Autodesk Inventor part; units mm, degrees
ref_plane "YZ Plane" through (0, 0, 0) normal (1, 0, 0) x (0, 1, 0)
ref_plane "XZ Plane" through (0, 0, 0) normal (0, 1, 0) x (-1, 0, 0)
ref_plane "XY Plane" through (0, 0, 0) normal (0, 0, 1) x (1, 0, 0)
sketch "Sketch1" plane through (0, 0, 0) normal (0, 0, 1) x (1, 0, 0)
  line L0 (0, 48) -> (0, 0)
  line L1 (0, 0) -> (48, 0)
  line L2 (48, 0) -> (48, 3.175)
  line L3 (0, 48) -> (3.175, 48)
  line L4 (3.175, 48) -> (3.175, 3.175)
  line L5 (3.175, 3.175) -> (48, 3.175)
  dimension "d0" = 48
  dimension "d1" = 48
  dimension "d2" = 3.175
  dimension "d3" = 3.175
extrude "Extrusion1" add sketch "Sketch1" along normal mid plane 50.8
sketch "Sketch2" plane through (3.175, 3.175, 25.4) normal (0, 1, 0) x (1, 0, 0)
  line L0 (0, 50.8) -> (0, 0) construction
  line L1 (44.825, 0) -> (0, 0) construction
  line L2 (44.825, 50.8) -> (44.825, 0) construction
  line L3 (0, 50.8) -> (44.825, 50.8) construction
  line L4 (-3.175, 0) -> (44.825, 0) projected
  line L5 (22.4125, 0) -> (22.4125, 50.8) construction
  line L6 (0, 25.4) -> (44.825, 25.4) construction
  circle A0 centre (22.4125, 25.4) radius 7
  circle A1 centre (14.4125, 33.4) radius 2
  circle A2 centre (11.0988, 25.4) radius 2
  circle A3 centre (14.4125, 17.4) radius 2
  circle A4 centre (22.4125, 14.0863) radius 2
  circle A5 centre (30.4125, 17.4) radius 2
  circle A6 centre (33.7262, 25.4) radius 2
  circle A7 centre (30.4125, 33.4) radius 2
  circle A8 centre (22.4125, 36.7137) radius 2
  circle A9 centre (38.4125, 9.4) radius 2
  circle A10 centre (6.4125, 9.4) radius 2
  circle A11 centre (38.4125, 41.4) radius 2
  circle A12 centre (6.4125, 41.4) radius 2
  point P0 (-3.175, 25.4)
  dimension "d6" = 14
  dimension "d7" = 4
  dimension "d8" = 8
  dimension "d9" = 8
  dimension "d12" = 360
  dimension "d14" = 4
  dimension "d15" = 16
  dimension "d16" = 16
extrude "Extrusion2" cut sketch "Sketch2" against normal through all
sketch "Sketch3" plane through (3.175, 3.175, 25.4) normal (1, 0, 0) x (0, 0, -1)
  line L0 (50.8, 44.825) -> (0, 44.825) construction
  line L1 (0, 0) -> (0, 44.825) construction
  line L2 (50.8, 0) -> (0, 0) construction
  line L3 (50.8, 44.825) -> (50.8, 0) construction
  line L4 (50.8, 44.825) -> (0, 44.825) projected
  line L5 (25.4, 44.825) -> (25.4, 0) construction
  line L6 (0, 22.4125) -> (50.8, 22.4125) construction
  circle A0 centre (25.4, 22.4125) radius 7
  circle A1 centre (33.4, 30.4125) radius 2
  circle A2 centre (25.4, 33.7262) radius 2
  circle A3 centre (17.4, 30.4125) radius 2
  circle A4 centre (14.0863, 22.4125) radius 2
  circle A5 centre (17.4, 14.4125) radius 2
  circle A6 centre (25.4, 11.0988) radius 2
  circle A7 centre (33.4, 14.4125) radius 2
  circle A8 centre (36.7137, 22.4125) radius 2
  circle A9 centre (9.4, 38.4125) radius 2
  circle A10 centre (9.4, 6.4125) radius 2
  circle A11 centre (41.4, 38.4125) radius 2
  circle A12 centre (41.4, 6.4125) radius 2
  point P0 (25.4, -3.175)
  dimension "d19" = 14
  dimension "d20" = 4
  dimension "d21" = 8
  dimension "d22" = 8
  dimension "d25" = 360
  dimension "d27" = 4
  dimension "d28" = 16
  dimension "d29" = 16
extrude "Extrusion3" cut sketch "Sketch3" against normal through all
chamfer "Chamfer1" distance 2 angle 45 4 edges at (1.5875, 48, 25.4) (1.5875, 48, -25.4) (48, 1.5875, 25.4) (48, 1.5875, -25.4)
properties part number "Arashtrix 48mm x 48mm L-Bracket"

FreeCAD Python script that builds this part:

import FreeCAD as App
import Part
import Sketcher
from FreeCAD import Vector
Q = App.Units.Quantity


def edges_at(feature, points):
    """Names of the edges that pass closest to the given points."""
    edges = feature.Shape.Edges
    near = lambda p: min(range(len(edges)), key=lambda i: edges[i].distToShape(Part.Vertex(*p))[0])
    return sorted({f"Edge{near(p) + 1}" for p in points})


def add_polygon(sketch, points):
    """Adds a closed chain of lines whose ends are joined by coincident constraints."""
    first, n = sketch.GeometryCount, len(points)
    for a, b in zip(points, points[1:] + points[:1]):
        sketch.addGeometry(Part.LineSegment(App.Vector(*a, 0), App.Vector(*b, 0)), False)
    for i in range(n):
        sketch.addConstraint(Sketcher.Constraint("Coincident", first + i, 2, first + (i + 1) % n, 1))

doc = App.newDocument("Part")
body = doc.addObject("PartDesign::Body", "Body")

# Sketch on XY plane
sketch1 = body.newObject("Sketcher::SketchObject", "Sketch")
sketch1.AttachmentSupport = (doc.getObject("XY_Plane"), [""])
sketch1.MapMode = "FlatFace"
add_polygon(sketch1, [(3.2, 48), (0, 48), (0, 0), (48, 0), (48, 3.2), (3.2, 3.2)])  # lines 0-5
sketch1.addConstraint([
    Sketcher.Constraint("Horizontal", 0),
    Sketcher.Constraint("Vertical", 1),
    Sketcher.Constraint("Horizontal", 2),
    Sketcher.Constraint("Vertical", 3),
    Sketcher.Constraint("Horizontal", 4),
    Sketcher.Constraint("Vertical", 5),
    Sketcher.Constraint("Coincident", 1, 2, -1, 1),
    Sketcher.Constraint("Equal", 2, 1),
    Sketcher.Constraint("Equal", 0, 3),
    Sketcher.Constraint("DistanceX", 2, 1, 2, 2, Q("48 mm")),
    Sketcher.Constraint("DistanceX", 0, 2, 0, 1, Q("3.175 mm")),
])
pad1 = body.newObject("PartDesign::Pad", "Pad")
pad1.Profile = sketch1
pad1.Length = 50.8
pad1.Midplane = True

# Sketch on XZ plane
sketch2 = body.newObject("Sketcher::SketchObject", "Sketch001")
sketch2.AttachmentSupport = (doc.getObject("XZ_Plane"), [""])
sketch2.MapMode = "FlatFace"
sketch2.AttachmentOffset = App.Placement(Vector(0, 0, -3.175), App.Rotation())
sketch2.addGeometry([
    Part.Circle(Vector(25.6, 0, 0), Vector(0, 0, 1), 7),  # 0
    Part.Circle(Vector(17.6, -8, 0), Vector(0, 0, 1), 2),  # 1
    Part.Circle(Vector(14.3, 0, 0), Vector(0, 0, 1), 2),  # 2
    Part.Circle(Vector(17.6, 8, 0), Vector(0, 0, 1), 2),  # 3
    Part.Circle(Vector(25.6, 11.3, 0), Vector(0, 0, 1), 2),  # 4
    Part.Circle(Vector(33.6, 8, 0), Vector(0, 0, 1), 2),  # 5
    Part.Circle(Vector(36.9, 0, 0), Vector(0, 0, 1), 2),  # 6
    Part.Circle(Vector(33.6, -8, 0), Vector(0, 0, 1), 2),  # 7
    Part.Circle(Vector(25.6, -11.3, 0), Vector(0, 0, 1), 2),  # 8
    Part.Circle(Vector(41.6, 16, 0), Vector(0, 0, 1), 2),  # 9
    Part.Circle(Vector(9.6, 16, 0), Vector(0, 0, 1), 2),  # 10
    Part.Circle(Vector(41.6, -16, 0), Vector(0, 0, 1), 2),  # 11
    Part.Circle(Vector(9.6, -16, 0), Vector(0, 0, 1), 2),  # 12
], False)
sketch2.addConstraint([
    Sketcher.Constraint("Equal", 1, 2),
    Sketcher.Constraint("Equal", 2, 3),
    Sketcher.Constraint("Equal", 3, 4),
    Sketcher.Constraint("Equal", 4, 5),
    Sketcher.Constraint("Equal", 5, 6),
    Sketcher.Constraint("Equal", 6, 7),
    Sketcher.Constraint("Equal", 7, 8),
    Sketcher.Constraint("Equal", 8, 9),
    Sketcher.Constraint("Equal", 9, 10),
    Sketcher.Constraint("Equal", 10, 11),
    Sketcher.Constraint("Equal", 11, 12),
    Sketcher.Constraint("Symmetric", 1, 3, 3, 3, -1),
    Sketcher.Constraint("Symmetric", 5, 3, 7, 3, -1),
    Sketcher.Constraint("Symmetric", 4, 3, 8, 3, -1),
    Sketcher.Constraint("Symmetric", 9, 3, 11, 3, -1),
    Sketcher.Constraint("Symmetric", 10, 3, 12, 3, -1),
    Sketcher.Constraint("PointOnObject", 0, 3, -1),
    Sketcher.Constraint("PointOnObject", 2, 3, -1),
    Sketcher.Constraint("PointOnObject", 6, 3, -1),
    Sketcher.Constraint("Horizontal", 3, 3, 5, 3),
    Sketcher.Constraint("Horizontal", 9, 3, 10, 3),
    Sketcher.Constraint("Vertical", 0, 3, 4, 3),
    Sketcher.Constraint("Diameter", 0, Q("14 mm")),
    Sketcher.Constraint("Diameter", 1, Q("4 mm")),
    Sketcher.Constraint("DistanceY", 1, 3, -1, 1, Q("8 mm")),
    Sketcher.Constraint("DistanceY", -1, 1, 9, 3, Q("16 mm")),
    Sketcher.Constraint("DistanceX", 1, 3, 0, 3, Q("8 mm")),
    Sketcher.Constraint("DistanceX", 4, 3, 5, 3, Q("8 mm")),
    Sketcher.Constraint("DistanceX", 5, 3, 9, 3, Q("8 mm")),
    Sketcher.Constraint("DistanceX", 10, 3, 3, 3, Q("8 mm")),
    Sketcher.Constraint("DistanceX", -1, 1, 0, 3, Q("25.5875 mm")),
    Sketcher.Constraint("DistanceX", -1, 1, 2, 3, Q("14.2738 mm")),
    Sketcher.Constraint("DistanceY", -1, 1, 4, 3, Q("11.3137 mm")),
    Sketcher.Constraint("DistanceX", -1, 1, 6, 3, Q("36.9012 mm")),
])
pocket1 = body.newObject("PartDesign::Pocket", "Pocket")
pocket1.Profile = sketch2
pocket1.Type = "ThroughAll"
pocket1.Reversed = True

# Sketch on YZ plane
sketch3 = body.newObject("Sketcher::SketchObject", "Sketch002")
sketch3.AttachmentSupport = (doc.getObject("YZ_Plane"), [""])
sketch3.MapMode = "FlatFace"
sketch3.AttachmentOffset = App.Placement(Vector(0, 0, 3.175), App.Rotation())
sketch3.addGeometry([
    Part.Circle(Vector(25.6, 0, 0), Vector(0, 0, 1), 7),  # 0
    Part.Circle(Vector(33.6, -8, 0), Vector(0, 0, 1), 2),  # 1
    Part.Circle(Vector(36.9, 0, 0), Vector(0, 0, 1), 2),  # 2
    Part.Circle(Vector(33.6, 8, 0), Vector(0, 0, 1), 2),  # 3
    Part.Circle(Vector(25.6, 11.3, 0), Vector(0, 0, 1), 2),  # 4
    Part.Circle(Vector(17.6, 8, 0), Vector(0, 0, 1), 2),  # 5
    Part.Circle(Vector(14.3, 0, 0), Vector(0, 0, 1), 2),  # 6
    Part.Circle(Vector(17.6, -8, 0), Vector(0, 0, 1), 2),  # 7
    Part.Circle(Vector(25.6, -11.3, 0), Vector(0, 0, 1), 2),  # 8
    Part.Circle(Vector(41.6, 16, 0), Vector(0, 0, 1), 2),  # 9
    Part.Circle(Vector(9.6, 16, 0), Vector(0, 0, 1), 2),  # 10
    Part.Circle(Vector(41.6, -16, 0), Vector(0, 0, 1), 2),  # 11
    Part.Circle(Vector(9.6, -16, 0), Vector(0, 0, 1), 2),  # 12
], False)
sketch3.addConstraint([
    Sketcher.Constraint("Equal", 1, 2),
    Sketcher.Constraint("Equal", 2, 3),
    Sketcher.Constraint("Equal", 3, 4),
    Sketcher.Constraint("Equal", 4, 5),
    Sketcher.Constraint("Equal", 5, 6),
    Sketcher.Constraint("Equal", 6, 7),
    Sketcher.Constraint("Equal", 7, 8),
    Sketcher.Constraint("Equal", 8, 9),
    Sketcher.Constraint("Equal", 9, 10),
    Sketcher.Constraint("Equal", 10, 11),
    Sketcher.Constraint("Equal", 11, 12),
    Sketcher.Constraint("Symmetric", 1, 3, 3, 3, -1),
    Sketcher.Constraint("Symmetric", 5, 3, 7, 3, -1),
    Sketcher.Constraint("Symmetric", 4, 3, 8, 3, -1),
    Sketcher.Constraint("Symmetric", 9, 3, 11, 3, -1),
    Sketcher.Constraint("Symmetric", 10, 3, 12, 3, -1),
    Sketcher.Constraint("PointOnObject", 0, 3, -1),
    Sketcher.Constraint("PointOnObject", 2, 3, -1),
    Sketcher.Constraint("PointOnObject", 6, 3, -1),
    Sketcher.Constraint("Horizontal", 3, 3, 5, 3),
    Sketcher.Constraint("Horizontal", 9, 3, 10, 3),
    Sketcher.Constraint("Vertical", 0, 3, 4, 3),
    Sketcher.Constraint("Diameter", 0, Q("14 mm")),
    Sketcher.Constraint("Diameter", 1, Q("4 mm")),
    Sketcher.Constraint("DistanceY", 1, 3, -1, 1, Q("8 mm")),
    Sketcher.Constraint("DistanceY", -1, 1, 9, 3, Q("16 mm")),
    Sketcher.Constraint("DistanceX", 0, 3, 1, 3, Q("8 mm")),
    Sketcher.Constraint("DistanceX", 5, 3, 4, 3, Q("8 mm")),
    Sketcher.Constraint("DistanceX", 3, 3, 9, 3, Q("8 mm")),
    Sketcher.Constraint("DistanceX", 10, 3, 5, 3, Q("8 mm")),
    Sketcher.Constraint("DistanceX", -1, 1, 0, 3, Q("25.5875 mm")),
    Sketcher.Constraint("DistanceX", -1, 1, 2, 3, Q("36.9012 mm")),
    Sketcher.Constraint("DistanceY", -1, 1, 4, 3, Q("11.3137 mm")),
    Sketcher.Constraint("DistanceX", -1, 1, 6, 3, Q("14.2738 mm")),
])
pocket2 = body.newObject("PartDesign::Pocket", "Pocket001")
pocket2.Profile = sketch3
pocket2.Type = "ThroughAll"
doc.recompute()

chamfer = body.newObject("PartDesign::Chamfer", "Chamfer")
chamfer.Base = (pocket2, edges_at(pocket2, [
    (1.587, 48, 25.4),
    (1.587, 48, -25.4),
    (48, 1.587, 25.4),
    (48, 1.587, -25.4),
]))
chamfer.Size = 2

doc.recompute()
